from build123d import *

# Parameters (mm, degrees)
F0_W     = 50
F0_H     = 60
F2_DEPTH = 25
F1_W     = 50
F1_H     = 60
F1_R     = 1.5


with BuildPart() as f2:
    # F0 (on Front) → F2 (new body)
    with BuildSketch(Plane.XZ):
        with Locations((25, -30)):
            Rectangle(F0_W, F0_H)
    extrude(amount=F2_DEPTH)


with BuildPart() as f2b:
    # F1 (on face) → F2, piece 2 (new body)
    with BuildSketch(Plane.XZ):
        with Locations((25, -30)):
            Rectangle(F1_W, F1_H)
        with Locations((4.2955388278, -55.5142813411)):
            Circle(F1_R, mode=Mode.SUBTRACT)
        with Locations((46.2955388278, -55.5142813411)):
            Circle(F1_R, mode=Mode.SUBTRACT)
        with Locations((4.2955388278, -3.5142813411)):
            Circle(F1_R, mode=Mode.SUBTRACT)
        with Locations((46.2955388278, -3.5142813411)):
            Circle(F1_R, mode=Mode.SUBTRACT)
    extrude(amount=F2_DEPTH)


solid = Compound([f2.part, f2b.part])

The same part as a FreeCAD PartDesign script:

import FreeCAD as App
import Part
import Sketcher

doc = App.newDocument("Part")
params = doc.addObject("Spreadsheet::Sheet", "Params")
for row, (alias, value) in enumerate([
    ("sketch1_width", "50 mm"),
    ("sketch1_height", "60 mm"),
    ("pad1_length", "25 mm"),
    ("sketch2_diameter", "3 mm"),
    ("sketch2_width", "50 mm"),
    ("sketch2_height", "60 mm"),
    ("pad2_length", "25 mm"),
], start=1):
    params.set(f"A{row}", alias)
    params.set(f"B{row}", "=" + value)
    params.setAlias(f"B{row}", alias)

body = doc.addObject("PartDesign::Body", "Body")

sketch1 = body.newObject("Sketcher::SketchObject", "Sketch")
sketch1.AttachmentSupport = (doc.getObject("XZ_Plane"), [""])
sketch1.MapMode = "FlatFace"
sketch1.addGeometry(Part.LineSegment(App.Vector(0, 0, 0), App.Vector(0, -60, 0)), False)
sketch1.addGeometry(Part.LineSegment(App.Vector(0, -60, 0), App.Vector(50, -60, 0)), False)
sketch1.addGeometry(Part.LineSegment(App.Vector(50, -60, 0), App.Vector(50, 0, 0)), False)
sketch1.addGeometry(Part.LineSegment(App.Vector(50, 0, 0), App.Vector(0, 0, 0)), False)
sketch1.addConstraint(Sketcher.Constraint("Coincident", 0, 2, 1, 1))
sketch1.addConstraint(Sketcher.Constraint("Coincident", 1, 2, 2, 1))
sketch1.addConstraint(Sketcher.Constraint("Coincident", 2, 2, 3, 1))
sketch1.addConstraint(Sketcher.Constraint("Coincident", 3, 2, 0, 1))
sketch1.addConstraint(Sketcher.Constraint("Vertical", 0))
sketch1.addConstraint(Sketcher.Constraint("Horizontal", 1))
sketch1.addConstraint(Sketcher.Constraint("Vertical", 2))
sketch1.addConstraint(Sketcher.Constraint("Horizontal", 3))
sketch1.addConstraint(Sketcher.Constraint("Coincident", 3, 2, -1, 1))
sketch1.addConstraint(Sketcher.Constraint("DistanceX", 1, 1, 1, 2, 50.0))
sketch1.addConstraint(Sketcher.Constraint("DistanceY", 0, 2, 0, 1, 60.0))
sketch1.setExpression("Constraints[9]", "Params.sketch1_width")
sketch1.setExpression("Constraints[10]", "Params.sketch1_height")
pad1 = body.newObject("PartDesign::Pad", "Pad")
pad1.Profile = sketch1
pad1.setExpression("Length", "Params.pad1_length")
body2 = doc.addObject("PartDesign::Body", "Body001")

sketch2 = body2.newObject("Sketcher::SketchObject", "Sketch001")
sketch2.AttachmentSupport = (doc.getObject("XZ_Plane001"), [""])
sketch2.MapMode = "FlatFace"
sketch2.addGeometry(Part.LineSegment(App.Vector(0, 0, 0), App.Vector(0, -60, 0)), False)
sketch2.addGeometry(Part.LineSegment(App.Vector(0, -60, 0), App.Vector(50, -60, 0)), False)
sketch2.addGeometry(Part.LineSegment(App.Vector(50, -60, 0), App.Vector(50, 0, 0)), False)
sketch2.addGeometry(Part.LineSegment(App.Vector(50, 0, 0), App.Vector(0, 0, 0)), False)
sketch2.addGeometry(Part.Circle(App.Vector(4.3, -55.5, 0), App.Vector(0, 0, 1), 1.5), False)
sketch2.addGeometry(Part.Circle(App.Vector(46.3, -55.5, 0), App.Vector(0, 0, 1), 1.5), False)
sketch2.addGeometry(Part.Circle(App.Vector(4.3, -3.5, 0), App.Vector(0, 0, 1), 1.5), False)
sketch2.addGeometry(Part.Circle(App.Vector(46.3, -3.5, 0), App.Vector(0, 0, 1), 1.5), False)
sketch2.addConstraint(Sketcher.Constraint("Coincident", 0, 2, 1, 1))
sketch2.addConstraint(Sketcher.Constraint("Coincident", 1, 2, 2, 1))
sketch2.addConstraint(Sketcher.Constraint("Coincident", 2, 2, 3, 1))
sketch2.addConstraint(Sketcher.Constraint("Coincident", 3, 2, 0, 1))
sketch2.addConstraint(Sketcher.Constraint("Vertical", 0))
sketch2.addConstraint(Sketcher.Constraint("Horizontal", 1))
sketch2.addConstraint(Sketcher.Constraint("Vertical", 2))
sketch2.addConstraint(Sketcher.Constraint("Horizontal", 3))
sketch2.addConstraint(Sketcher.Constraint("Coincident", 3, 2, -1, 1))
sketch2.addConstraint(Sketcher.Constraint("Equal", 4, 5))
sketch2.addConstraint(Sketcher.Constraint("Equal", 5, 6))
sketch2.addConstraint(Sketcher.Constraint("Equal", 6, 7))
sketch2.addConstraint(Sketcher.Constraint("Horizontal", 4, 3, 5, 3))
sketch2.addConstraint(Sketcher.Constraint("Horizontal", 6, 3, 7, 3))
sketch2.addConstraint(Sketcher.Constraint("Vertical", 4, 3, 6, 3))
sketch2.addConstraint(Sketcher.Constraint("Vertical", 5, 3, 7, 3))
sketch2.addConstraint(Sketcher.Constraint("Diameter", 4, 3.0))
sketch2.addConstraint(Sketcher.Constraint("DistanceX", 1, 1, 1, 2, 50.0))
sketch2.addConstraint(Sketcher.Constraint("DistanceY", 0, 2, 0, 1, 60.0))
sketch2.addConstraint(Sketcher.Constraint("DistanceX", 4, 3, 5, 3, 42.0))
sketch2.addConstraint(Sketcher.Constraint("DistanceY", 4, 3, 6, 3, 52.0))
sketch2.addConstraint(Sketcher.Constraint("DistanceX", -1, 1, 4, 3, 4.295539))
sketch2.addConstraint(Sketcher.Constraint("DistanceY", 4, 3, -1, 1, 55.514281))
sketch2.setExpression("Constraints[16]", "Params.sketch2_diameter")
sketch2.setExpression("Constraints[17]", "Params.sketch2_width")
sketch2.setExpression("Constraints[18]", "Params.sketch2_height")
pad2 = body2.newObject("PartDesign::Pad", "Pad001")
pad2.Profile = sketch2
pad2.setExpression("Length", "Params.pad2_length")

doc.recompute()
